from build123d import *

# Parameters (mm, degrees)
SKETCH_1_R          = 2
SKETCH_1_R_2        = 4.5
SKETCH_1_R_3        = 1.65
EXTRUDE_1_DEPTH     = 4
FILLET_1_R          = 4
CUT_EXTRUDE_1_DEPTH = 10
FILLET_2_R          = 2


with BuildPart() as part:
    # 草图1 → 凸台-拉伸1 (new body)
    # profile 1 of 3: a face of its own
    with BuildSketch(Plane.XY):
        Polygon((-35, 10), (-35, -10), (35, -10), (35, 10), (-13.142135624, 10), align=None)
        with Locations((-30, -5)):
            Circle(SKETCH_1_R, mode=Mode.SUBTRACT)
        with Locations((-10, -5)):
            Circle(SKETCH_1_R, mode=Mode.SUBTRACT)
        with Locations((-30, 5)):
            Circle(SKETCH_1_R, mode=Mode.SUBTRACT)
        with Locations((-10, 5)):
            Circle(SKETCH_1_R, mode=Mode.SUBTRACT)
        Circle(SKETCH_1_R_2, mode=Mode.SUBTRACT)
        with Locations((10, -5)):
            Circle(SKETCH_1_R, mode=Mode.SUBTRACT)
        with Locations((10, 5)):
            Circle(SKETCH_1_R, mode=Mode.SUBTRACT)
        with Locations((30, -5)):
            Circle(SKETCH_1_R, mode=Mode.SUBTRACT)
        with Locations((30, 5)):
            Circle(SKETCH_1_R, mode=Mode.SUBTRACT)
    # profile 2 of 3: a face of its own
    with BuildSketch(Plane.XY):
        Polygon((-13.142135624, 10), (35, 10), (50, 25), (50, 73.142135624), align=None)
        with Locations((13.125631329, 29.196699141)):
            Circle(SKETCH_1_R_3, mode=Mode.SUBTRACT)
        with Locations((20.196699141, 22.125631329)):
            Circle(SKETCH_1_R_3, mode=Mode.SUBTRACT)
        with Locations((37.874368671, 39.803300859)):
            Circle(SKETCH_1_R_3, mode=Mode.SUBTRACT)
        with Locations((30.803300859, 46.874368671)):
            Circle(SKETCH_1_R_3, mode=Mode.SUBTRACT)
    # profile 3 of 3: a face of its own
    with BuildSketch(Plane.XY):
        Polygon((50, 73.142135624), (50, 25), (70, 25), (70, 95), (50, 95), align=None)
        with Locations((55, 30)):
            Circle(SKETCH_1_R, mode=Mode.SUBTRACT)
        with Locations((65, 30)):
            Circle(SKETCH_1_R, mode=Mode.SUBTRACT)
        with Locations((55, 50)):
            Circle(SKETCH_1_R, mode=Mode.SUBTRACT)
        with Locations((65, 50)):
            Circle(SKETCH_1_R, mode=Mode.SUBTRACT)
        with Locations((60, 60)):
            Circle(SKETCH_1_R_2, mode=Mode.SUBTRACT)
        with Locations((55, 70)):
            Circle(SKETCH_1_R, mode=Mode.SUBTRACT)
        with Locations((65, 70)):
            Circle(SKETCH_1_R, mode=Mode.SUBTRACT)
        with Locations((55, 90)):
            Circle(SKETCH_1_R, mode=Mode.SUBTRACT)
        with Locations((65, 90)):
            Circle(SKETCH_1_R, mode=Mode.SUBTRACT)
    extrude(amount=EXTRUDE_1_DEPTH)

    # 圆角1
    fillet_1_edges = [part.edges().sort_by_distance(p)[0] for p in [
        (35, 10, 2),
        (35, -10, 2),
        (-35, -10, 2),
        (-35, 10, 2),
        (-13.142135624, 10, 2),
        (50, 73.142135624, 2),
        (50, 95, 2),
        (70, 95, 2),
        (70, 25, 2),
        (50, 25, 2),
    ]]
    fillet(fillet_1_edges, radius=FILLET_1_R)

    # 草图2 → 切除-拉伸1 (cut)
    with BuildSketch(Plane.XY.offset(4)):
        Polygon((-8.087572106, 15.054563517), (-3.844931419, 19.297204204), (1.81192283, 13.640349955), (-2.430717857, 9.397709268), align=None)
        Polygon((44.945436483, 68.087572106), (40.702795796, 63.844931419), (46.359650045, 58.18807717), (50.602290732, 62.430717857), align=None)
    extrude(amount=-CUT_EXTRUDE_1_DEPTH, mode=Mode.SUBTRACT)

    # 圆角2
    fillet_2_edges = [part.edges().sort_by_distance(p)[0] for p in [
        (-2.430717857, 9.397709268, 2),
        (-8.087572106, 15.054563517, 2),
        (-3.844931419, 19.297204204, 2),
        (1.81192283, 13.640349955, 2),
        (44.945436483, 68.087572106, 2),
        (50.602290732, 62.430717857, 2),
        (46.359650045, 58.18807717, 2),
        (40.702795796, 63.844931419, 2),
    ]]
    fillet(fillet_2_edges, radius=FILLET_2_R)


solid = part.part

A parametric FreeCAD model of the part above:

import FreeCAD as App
import Part
import Sketcher
Q = App.Units.Quantity


def edges_at(feature, points):
    """Names of the edges that pass closest to the given points."""
    edges = feature.Shape.Edges
    near = lambda p: min(range(len(edges)), key=lambda i: edges[i].distToShape(Part.Vertex(*p))[0])
    return sorted({f"Edge{near(p) + 1}" for p in points})

doc = App.newDocument("Part")
body = doc.addObject("PartDesign::Body", "Body")

# Sketch on XY plane
sketch1 = body.newObject("Sketcher::SketchObject", "Sketch")
sketch1.AttachmentSupport = (doc.getObject("XY_Plane"), [""])
sketch1.MapMode = "FlatFace"
sketch1.addGeometry([
    Part.LineSegment(App.Vector(-35, 10, 0), App.Vector(-35, -10, 0)),  # 0
    Part.LineSegment(App.Vector(-35, -10, 0), App.Vector(35, -10, 0)),  # 1
    Part.LineSegment(App.Vector(35, -10, 0), App.Vector(35, 10, 0)),  # 2
    Part.LineSegment(App.Vector(35, 10, 0), App.Vector(50, 25, 0)),  # 3
    Part.LineSegment(App.Vector(50, 25, 0), App.Vector(70, 25, 0)),  # 4
    Part.LineSegment(App.Vector(70, 25, 0), App.Vector(70, 95, 0)),  # 5
    Part.LineSegment(App.Vector(70, 95, 0), App.Vector(50, 95, 0)),  # 6
    Part.LineSegment(App.Vector(50, 95, 0), App.Vector(50, 73.1, 0)),  # 7
    Part.LineSegment(App.Vector(50, 73.1, 0), App.Vector(-13.1, 10, 0)),  # 8
    Part.LineSegment(App.Vector(-13.1, 10, 0), App.Vector(-35, 10, 0)),  # 9
    Part.Circle(App.Vector(-30, -5, 0), App.Vector(0, 0, 1), 2),  # 10
    Part.Circle(App.Vector(-10, -5, 0), App.Vector(0, 0, 1), 2),  # 11
    Part.Circle(App.Vector(10, -5, 0), App.Vector(0, 0, 1), 2),  # 12
    Part.Circle(App.Vector(30, -5, 0), App.Vector(0, 0, 1), 2),  # 13
    Part.Circle(App.Vector(-30, 5, 0), App.Vector(0, 0, 1), 2),  # 14
    Part.Circle(App.Vector(-10, 5, 0), App.Vector(0, 0, 1), 2),  # 15
    Part.Circle(App.Vector(0, 0, 0), App.Vector(0, 0, 1), 4.5),  # 16
    Part.Circle(App.Vector(10, 5, 0), App.Vector(0, 0, 1), 2),  # 17
    Part.Circle(App.Vector(30, 5, 0), App.Vector(0, 0, 1), 2),  # 18
    Part.Circle(App.Vector(30.8, 46.9, 0), App.Vector(0, 0, 1), 1.6),  # 19
    Part.Circle(App.Vector(20.2, 22.1, 0), App.Vector(0, 0, 1), 1.6),  # 20
    Part.Circle(App.Vector(13.1, 29.2, 0), App.Vector(0, 0, 1), 1.6),  # 21
    Part.Circle(App.Vector(37.9, 39.8, 0), App.Vector(0, 0, 1), 1.6),  # 22
    Part.Circle(App.Vector(65, 90, 0), App.Vector(0, 0, 1), 2),  # 23
    Part.Circle(App.Vector(55, 30, 0), App.Vector(0, 0, 1), 2),  # 24
    Part.Circle(App.Vector(55, 50, 0), App.Vector(0, 0, 1), 2),  # 25
    Part.Circle(App.Vector(65, 30, 0), App.Vector(0, 0, 1), 2),  # 26
    Part.Circle(App.Vector(65, 50, 0), App.Vector(0, 0, 1), 2),  # 27
    Part.Circle(App.Vector(55, 70, 0), App.Vector(0, 0, 1), 2),  # 28
    Part.Circle(App.Vector(55, 90, 0), App.Vector(0, 0, 1), 2),  # 29
    Part.Circle(App.Vector(60, 60, 0), App.Vector(0, 0, 1), 4.5),  # 30
    Part.Circle(App.Vector(65, 70, 0), App.Vector(0, 0, 1), 2),  # 31
], False)
sketch1.addConstraint([
    Sketcher.Constraint("Coincident", 0, 2, 1, 1),
    Sketcher.Constraint("Coincident", 1, 2, 2, 1),
    Sketcher.Constraint("Coincident", 2, 2, 3, 1),
    Sketcher.Constraint("Coincident", 3, 2, 4, 1),
    Sketcher.Constraint("Coincident", 4, 2, 5, 1),
    Sketcher.Constraint("Coincident", 5, 2, 6, 1),
    Sketcher.Constraint("Coincident", 6, 2, 7, 1),
    Sketcher.Constraint("Coincident", 7, 2, 8, 1),
    Sketcher.Constraint("Coincident", 8, 2, 9, 1),
    Sketcher.Constraint("Coincident", 9, 2, 0, 1),
    Sketcher.Constraint("Vertical", 0),
    Sketcher.Constraint("Horizontal", 1),
    Sketcher.Constraint("Vertical", 2),
    Sketcher.Constraint("Horizontal", 4),
    Sketcher.Constraint("Vertical", 5),
    Sketcher.Constraint("Horizontal", 6),
    Sketcher.Constraint("Vertical", 7),
    Sketcher.Constraint("Horizontal", 9),
    Sketcher.Constraint("Coincident", 16, 3, -1, 1),
    Sketcher.Constraint("Equal", 10, 11),
    Sketcher.Constraint("Equal", 11, 12),
    Sketcher.Constraint("Equal", 12, 13),
    Sketcher.Constraint("Equal", 13, 14),
    Sketcher.Constraint("Equal", 14, 15),
    Sketcher.Constraint("Equal", 15, 17),
    Sketcher.Constraint("Equal", 17, 18),
    Sketcher.Constraint("Equal", 19, 20),
    Sketcher.Constraint("Equal", 20, 21),
    Sketcher.Constraint("Equal", 21, 22),
    Sketcher.Constraint("Equal", 18, 23),
    Sketcher.Constraint("Equal", 23, 24),
    Sketcher.Constraint("Equal", 24, 25),
    Sketcher.Constraint("Equal", 25, 26),
    Sketcher.Constraint("Equal", 26, 27),
    Sketcher.Constraint("Equal", 27, 28),
    Sketcher.Constraint("Equal", 28, 29),
    Sketcher.Constraint("Equal", 16, 30),
    Sketcher.Constraint("Equal", 29, 31),
    Sketcher.Constraint("Symmetric", 13, 3, 14, 3, -1, 1),
    Sketcher.Constraint("Symmetric", 12, 3, 15, 3, -1, 1),
    Sketcher.Constraint("Symmetric", 11, 3, 17, 3, -1, 1),
    Sketcher.Constraint("Symmetric", 10, 3, 18, 3, -1, 1),
    Sketcher.Constraint("Symmetric", 0, 2, 2, 2, -1, 1),
    Sketcher.Constraint("Symmetric", 11, 3, 12, 3, -2),
    Sketcher.Constraint("Symmetric", 10, 3, 13, 3, -2),
    Sketcher.Constraint("Parallel", 3, 8),
    Sketcher.Constraint("Horizontal", 10, 3, 11, 3),
    Sketcher.Constraint("Horizontal", 24, 3, 26, 3),
    Sketcher.Constraint("Horizontal", 25, 3, 27, 3),
    Sketcher.Constraint("Horizontal", 23, 3, 29, 3),
    Sketcher.Constraint("Horizontal", 28, 3, 31, 3),
    Sketcher.Constraint("Horizontal", 2, 2, 8, 2),
    Sketcher.Constraint("Vertical", 24, 3, 25, 3),
    Sketcher.Constraint("Vertical", 23, 3, 26, 3),
    Sketcher.Constraint("Vertical", 26, 3, 27, 3),
    Sketcher.Constraint("Vertical", 25, 3, 28, 3),
    Sketcher.Constraint("Vertical", 28, 3, 29, 3),
    Sketcher.Constraint("Vertical", 27, 3, 31, 3),
    Sketcher.Constraint("Vertical", 3, 2, 6, 2),
    Sketcher.Constraint("Equal", 6, 0),
    Sketcher.Constraint("Equal", 1, 5),
    Sketcher.Constraint("Equal", 9, 7),
    Sketcher.Constraint("Diameter", 10, Q("4 mm")),
    Sketcher.Constraint("Diameter", 16, Q("9 mm")),
    Sketcher.Constraint("Diameter", 19, Q("3.3 mm")),
    Sketcher.Constraint("DistanceX", 1, 1, 1, 2, Q("70 mm")),
    Sketcher.Constraint("DistanceX", 4, 1, 4, 2, Q("20 mm")),
    Sketcher.Constraint("DistanceX", 10, 3, -1, 1, Q("30 mm")),
    Sketcher.Constraint("DistanceY", 10, 3, -1, 1, Q("5 mm")),
    Sketcher.Constraint("DistanceX", 11, 3, -1, 1, Q("10 mm")),
    Sketcher.Constraint("DistanceX", -1, 1, 23, 3, Q("65 mm")),
    Sketcher.Constraint("DistanceY", -1, 1, 23, 3, Q("90 mm")),
    Sketcher.Constraint("DistanceX", -1, 1, 24, 3, Q("55 mm")),
    Sketcher.Constraint("DistanceY", -1, 1, 24, 3, Q("30 mm")),
    Sketcher.Constraint("DistanceY", -1, 1, 25, 3, Q("50 mm")),
    Sketcher.Constraint("DistanceY", -1, 1, 28, 3, Q("70 mm")),
    Sketcher.Constraint("DistanceX", -1, 1, 30, 3, Q("60 mm")),
    Sketcher.Constraint("DistanceY", -1, 1, 30, 3, Q("60 mm")),
    Sketcher.Constraint("DistanceX", -1, 1, 3, 2, Q("50 mm")),
    Sketcher.Constraint("DistanceX", -1, 1, 19, 3, Q("30.803301 mm")),
    Sketcher.Constraint("DistanceX", -1, 1, 20, 3, Q("20.196699 mm")),
    Sketcher.Constraint("DistanceY", -1, 1, 21, 3, Q("29.196699 mm")),
    Sketcher.Constraint("DistanceY", -1, 1, 22, 3, Q("39.803301 mm")),
    Sketcher.Constraint("DistanceX", 9, 2, 9, 1, Q("21.857864 mm")),
    Sketcher.Constraint("DistanceY", -1, 1, 19, 3, Q("46.874369 mm")),
    Sketcher.Constraint("DistanceY", -1, 1, 20, 3, Q("22.125631 mm")),
    Sketcher.Constraint("DistanceX", -1, 1, 21, 3, Q("13.125631 mm")),
    Sketcher.Constraint("DistanceX", -1, 1, 22, 3, Q("37.874369 mm")),
])
pad1 = body.newObject("PartDesign::Pad", "Pad")
pad1.Profile = sketch1
pad1.Length = 4
doc.recompute()

fillet = body.newObject("PartDesign::Fillet", "Fillet")
fillet.Base = (pad1, edges_at(pad1, [
    (35, 10, 2),
    (35, -10, 2),
    (-35, -10, 2),
    (-35, 10, 2),
    (-13.142, 10, 2),
    (50, 73.142, 2),
    (50, 95, 2),
    (70, 95, 2),
    (70, 25, 2),
    (50, 25, 2),
]))
fillet.Radius = 4

# Sketch on XY plane
sketch2 = body.newObject("Sketcher::SketchObject", "Sketch001")
sketch2.AttachmentSupport = (doc.getObject("XY_Plane"), [""])
sketch2.MapMode = "FlatFace"
sketch2.AttachmentOffset = App.Placement(App.Vector(0, 0, 4), App.Rotation())
sketch2.addGeometry([
    Part.LineSegment(App.Vector(-4, 19, 0), App.Vector(-8, 15, 0)),  # 0
    Part.LineSegment(App.Vector(-8, 15, 0), App.Vector(-2, 9, 0)),  # 1
    Part.LineSegment(App.Vector(-2, 9, 0), App.Vector(2, 14, 0)),  # 2
    Part.LineSegment(App.Vector(2, 14, 0), App.Vector(-4, 19, 0)),  # 3
    Part.LineSegment(App.Vector(45, 68, 0), App.Vector(41, 64, 0)),  # 4
    Part.LineSegment(App.Vector(41, 64, 0), App.Vector(46, 58, 0)),  # 5
    Part.LineSegment(App.Vector(46, 58, 0), App.Vector(51, 62, 0)),  # 6
    Part.LineSegment(App.Vector(51, 62, 0), App.Vector(45, 68, 0)),  # 7
], False)
sketch2.addConstraint([
    Sketcher.Constraint("Coincident", 0, 2, 1, 1),
    Sketcher.Constraint("Coincident", 1, 2, 2, 1),
    Sketcher.Constraint("Coincident", 2, 2, 3, 1),
    Sketcher.Constraint("Coincident", 3, 2, 0, 1),
    Sketcher.Constraint("Coincident", 4, 2, 5, 1),
    Sketcher.Constraint("Coincident", 5, 2, 6, 1),
    Sketcher.Constraint("Coincident", 6, 2, 7, 1),
    Sketcher.Constraint("Coincident", 7, 2, 4, 1),
    Sketcher.Constraint("Perpendicular", 0, 1),
    Sketcher.Constraint("Perpendicular", 1, 2),
    Sketcher.Constraint("Perpendicular", 2, 3),
    Sketcher.Constraint("Perpendicular", 3, 4),
    Sketcher.Constraint("Perpendicular", 4, 5),
    Sketcher.Constraint("Perpendicular", 5, 6),
    Sketcher.Constraint("Perpendicular", 6, 7),
    Sketcher.Constraint("Equal", 2, 4),
    Sketcher.Constraint("Equal", 3, 5),
    Sketcher.Constraint("Angle", 0, Q("-135 deg")),
    Sketcher.Constraint("Distance", 0, Q("6 mm")),
    Sketcher.Constraint("Distance", 1, Q("8 mm")),
    Sketcher.Constraint("DistanceY", -1, 1, 1, 2, Q("9.397709 mm")),
    Sketcher.Constraint("DistanceX", 3, 2, -1, 1, Q("3.844931 mm")),
    Sketcher.Constraint("DistanceY", -1, 1, 4, 2, Q("63.844931 mm")),
    Sketcher.Constraint("DistanceX", -1, 1, 5, 2, Q("46.35965 mm")),
])
pocket1 = body.newObject("PartDesign::Pocket", "Pocket")
pocket1.Profile = sketch2
pocket1.Length = 10
doc.recompute()

fillet2 = body.newObject("PartDesign::Fillet", "Fillet001")
fillet2.Base = (pocket1, edges_at(pocket1, [
    (-2.431, 9.398, 2),
    (-8.088, 15.055, 2),
    (-3.845, 19.297, 2),
    (1.812, 13.64, 2),
    (44.945, 68.088, 2),
    (50.602, 62.431, 2),
    (46.36, 58.188, 2),
    (40.703, 63.845, 2),
]))
fillet2.Radius = 2

doc.recompute()
